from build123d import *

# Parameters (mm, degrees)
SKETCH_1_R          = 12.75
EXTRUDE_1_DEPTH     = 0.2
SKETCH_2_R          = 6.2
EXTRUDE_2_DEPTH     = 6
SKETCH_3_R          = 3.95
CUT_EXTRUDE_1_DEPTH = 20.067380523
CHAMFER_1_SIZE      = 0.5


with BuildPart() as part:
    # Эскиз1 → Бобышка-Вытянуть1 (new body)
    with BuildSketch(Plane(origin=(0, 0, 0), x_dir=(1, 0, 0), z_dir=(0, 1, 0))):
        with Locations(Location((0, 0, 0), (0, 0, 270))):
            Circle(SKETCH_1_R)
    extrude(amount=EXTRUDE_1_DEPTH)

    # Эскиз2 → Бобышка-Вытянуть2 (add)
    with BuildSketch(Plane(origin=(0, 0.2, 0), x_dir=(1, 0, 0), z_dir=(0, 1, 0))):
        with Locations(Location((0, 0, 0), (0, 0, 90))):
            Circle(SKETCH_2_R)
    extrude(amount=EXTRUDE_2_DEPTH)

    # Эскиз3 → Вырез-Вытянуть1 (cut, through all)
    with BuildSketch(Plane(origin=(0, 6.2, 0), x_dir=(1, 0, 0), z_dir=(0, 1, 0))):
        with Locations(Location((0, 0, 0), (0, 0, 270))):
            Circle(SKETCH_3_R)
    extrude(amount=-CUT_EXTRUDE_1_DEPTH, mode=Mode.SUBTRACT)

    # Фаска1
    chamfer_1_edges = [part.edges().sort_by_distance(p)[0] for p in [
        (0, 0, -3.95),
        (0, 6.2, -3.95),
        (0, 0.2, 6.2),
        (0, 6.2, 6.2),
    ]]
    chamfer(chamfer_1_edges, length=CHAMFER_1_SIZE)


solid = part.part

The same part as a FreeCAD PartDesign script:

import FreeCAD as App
import Part
import Sketcher

V = App.Vector


def edges_at(feature, points):
    """Names of the edges that pass closest to the given points."""
    edges = feature.Shape.Edges
    near = lambda p: min(range(len(edges)), key=lambda i: edges[i].distToShape(Part.Vertex(*p))[0])
    return sorted({f"Edge{near(p) + 1}" for p in points})

doc = App.newDocument("Part")
body = doc.addObject("PartDesign::Body", "Body")

sketch1 = body.newObject("Sketcher::SketchObject", "Sketch")
sketch1.AttachmentSupport = (doc.getObject("XZ_Plane"), [""])
sketch1.MapMode = "FlatFace"
sketch1.addGeometry(Part.Circle(V(0, 0, 0), V(0, 0, 1), 13), False)
sketch1.addConstraint([
    Sketcher.Constraint("Coincident", 0, 3, -1, 1),
    Sketcher.Constraint("Diameter", 0, 25.5),
])
pad1 = body.newObject("PartDesign::Pad", "Pad")
pad1.Profile = sketch1
pad1.Length = 0.2
pad1.Reversed = True

sketch2 = body.newObject("Sketcher::SketchObject", "Sketch001")
sketch2.AttachmentSupport = (doc.getObject("XZ_Plane"), [""])
sketch2.MapMode = "FlatFace"
sketch2.AttachmentOffset = App.Placement(V(0, 0, -0.2), App.Rotation())
sketch2.addGeometry(Part.Circle(V(0, 0, 0), V(0, 0, 1), 6), False)
sketch2.addConstraint([
    Sketcher.Constraint("Coincident", 0, 3, -1, 1),
    Sketcher.Constraint("Diameter", 0, 12.4),
])
pad2 = body.newObject("PartDesign::Pad", "Pad001")
pad2.Profile = sketch2
pad2.Length = 6
pad2.Reversed = True

sketch3 = body.newObject("Sketcher::SketchObject", "Sketch002")
sketch3.AttachmentSupport = (doc.getObject("XZ_Plane"), [""])
sketch3.MapMode = "FlatFace"
sketch3.AttachmentOffset = App.Placement(V(0, 0, -6.2), App.Rotation())
sketch3.addGeometry(Part.Circle(V(0, 0, 0), V(0, 0, 1), 4), False)
sketch3.addConstraint([
    Sketcher.Constraint("Coincident", 0, 3, -1, 1),
    Sketcher.Constraint("Diameter", 0, 7.9),
])
pocket1 = body.newObject("PartDesign::Pocket", "Pocket")
pocket1.Profile = sketch3
pocket1.Type = "ThroughAll"
pocket1.Reversed = True
doc.recompute()

chamfer = body.newObject("PartDesign::Chamfer", "Chamfer")
chamfer.Base = (pocket1, edges_at(pocket1, [
    (0, 0, -3.95),
    (0, 6.2, -3.95),
    (0, 0.2, 6.2),
    (0, 6.2, 6.2),
]))
chamfer.Size = 0.5

doc.recompute()
